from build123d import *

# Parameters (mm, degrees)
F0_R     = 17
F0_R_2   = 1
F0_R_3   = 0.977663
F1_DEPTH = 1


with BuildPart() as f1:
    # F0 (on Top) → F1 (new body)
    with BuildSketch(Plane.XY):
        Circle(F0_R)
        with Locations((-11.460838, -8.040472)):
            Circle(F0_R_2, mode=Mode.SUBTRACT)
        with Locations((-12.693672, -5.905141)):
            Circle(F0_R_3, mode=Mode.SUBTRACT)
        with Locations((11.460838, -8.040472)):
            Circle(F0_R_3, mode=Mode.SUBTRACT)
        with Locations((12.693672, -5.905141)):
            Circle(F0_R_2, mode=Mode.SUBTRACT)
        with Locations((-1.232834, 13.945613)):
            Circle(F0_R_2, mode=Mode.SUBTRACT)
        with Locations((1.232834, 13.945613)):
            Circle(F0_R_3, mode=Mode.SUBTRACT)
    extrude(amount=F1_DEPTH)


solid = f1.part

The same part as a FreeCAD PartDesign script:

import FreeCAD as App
import Part
import Sketcher

doc = App.newDocument("Part")
body = doc.addObject("PartDesign::Body", "Body")

# Sketch on XY plane
sketch1 = doc.addObject("Sketcher::SketchObject", "Sketch")
body.addObject(sketch1)
sketch1.AttachmentSupport = (doc.XY_Plane, [""])
sketch1.MapMode = "FlatFace"
sketch1.addGeometry([
    Part.Circle(App.Vector(0, 0, 0), App.Vector(0, 0, 1), 17),  # 0
    Part.Circle(App.Vector(-11.5, -8, 0), App.Vector(0, 0, 1), 1),  # 1
    Part.Circle(App.Vector(-12.7, -5.9, 0), App.Vector(0, 0, 1), 1),  # 2
    Part.Circle(App.Vector(11.5, -8, 0), App.Vector(0, 0, 1), 1),  # 3
    Part.Circle(App.Vector(12.7, -5.9, 0), App.Vector(0, 0, 1), 1),  # 4
    Part.Circle(App.Vector(-1.2, 13.9, 0), App.Vector(0, 0, 1), 1),  # 5
    Part.Circle(App.Vector(1.2, 13.9, 0), App.Vector(0, 0, 1), 1),  # 6
], False)
sketch1.addConstraint([
    Sketcher.Constraint("Coincident", 0, 3, -1, 1),
    Sketcher.Constraint("Equal", 2, 3),
    Sketcher.Constraint("Equal", 1, 4),
    Sketcher.Constraint("Equal", 4, 5),
    Sketcher.Constraint("Equal", 3, 6),
    Sketcher.Constraint("Symmetric", 1, 3, 3, 3, -2),
    Sketcher.Constraint("Symmetric", 2, 3, 4, 3, -2),
    Sketcher.Constraint("Symmetric", 5, 3, 6, 3, -2),
    Sketcher.Constraint("Diameter", 0, 34.0),
    Sketcher.Constraint("Diameter", 1, 2.0),
    Sketcher.Constraint("Diameter", 2, 1.955326),
    Sketcher.Constraint("DistanceX", 1, 3, -1, 1, 11.460838),
    Sketcher.Constraint("DistanceY", 2, 3, -1, 1, 5.905141),
    Sketcher.Constraint("DistanceY", 1, 3, 2, 3, 2.135331),
    Sketcher.Constraint("DistanceX", 2, 3, 3, 3, 24.15451),
    Sketcher.Constraint("DistanceX", 5, 3, 6, 3, 2.465668),
    Sketcher.Constraint("DistanceY", -1, 1, 5, 3, 13.945613),
])
pad1 = doc.addObject("PartDesign::Pad", "Pad")
body.addObject(pad1)
pad1.Profile = sketch1
pad1.Length = 1

doc.recompute()
